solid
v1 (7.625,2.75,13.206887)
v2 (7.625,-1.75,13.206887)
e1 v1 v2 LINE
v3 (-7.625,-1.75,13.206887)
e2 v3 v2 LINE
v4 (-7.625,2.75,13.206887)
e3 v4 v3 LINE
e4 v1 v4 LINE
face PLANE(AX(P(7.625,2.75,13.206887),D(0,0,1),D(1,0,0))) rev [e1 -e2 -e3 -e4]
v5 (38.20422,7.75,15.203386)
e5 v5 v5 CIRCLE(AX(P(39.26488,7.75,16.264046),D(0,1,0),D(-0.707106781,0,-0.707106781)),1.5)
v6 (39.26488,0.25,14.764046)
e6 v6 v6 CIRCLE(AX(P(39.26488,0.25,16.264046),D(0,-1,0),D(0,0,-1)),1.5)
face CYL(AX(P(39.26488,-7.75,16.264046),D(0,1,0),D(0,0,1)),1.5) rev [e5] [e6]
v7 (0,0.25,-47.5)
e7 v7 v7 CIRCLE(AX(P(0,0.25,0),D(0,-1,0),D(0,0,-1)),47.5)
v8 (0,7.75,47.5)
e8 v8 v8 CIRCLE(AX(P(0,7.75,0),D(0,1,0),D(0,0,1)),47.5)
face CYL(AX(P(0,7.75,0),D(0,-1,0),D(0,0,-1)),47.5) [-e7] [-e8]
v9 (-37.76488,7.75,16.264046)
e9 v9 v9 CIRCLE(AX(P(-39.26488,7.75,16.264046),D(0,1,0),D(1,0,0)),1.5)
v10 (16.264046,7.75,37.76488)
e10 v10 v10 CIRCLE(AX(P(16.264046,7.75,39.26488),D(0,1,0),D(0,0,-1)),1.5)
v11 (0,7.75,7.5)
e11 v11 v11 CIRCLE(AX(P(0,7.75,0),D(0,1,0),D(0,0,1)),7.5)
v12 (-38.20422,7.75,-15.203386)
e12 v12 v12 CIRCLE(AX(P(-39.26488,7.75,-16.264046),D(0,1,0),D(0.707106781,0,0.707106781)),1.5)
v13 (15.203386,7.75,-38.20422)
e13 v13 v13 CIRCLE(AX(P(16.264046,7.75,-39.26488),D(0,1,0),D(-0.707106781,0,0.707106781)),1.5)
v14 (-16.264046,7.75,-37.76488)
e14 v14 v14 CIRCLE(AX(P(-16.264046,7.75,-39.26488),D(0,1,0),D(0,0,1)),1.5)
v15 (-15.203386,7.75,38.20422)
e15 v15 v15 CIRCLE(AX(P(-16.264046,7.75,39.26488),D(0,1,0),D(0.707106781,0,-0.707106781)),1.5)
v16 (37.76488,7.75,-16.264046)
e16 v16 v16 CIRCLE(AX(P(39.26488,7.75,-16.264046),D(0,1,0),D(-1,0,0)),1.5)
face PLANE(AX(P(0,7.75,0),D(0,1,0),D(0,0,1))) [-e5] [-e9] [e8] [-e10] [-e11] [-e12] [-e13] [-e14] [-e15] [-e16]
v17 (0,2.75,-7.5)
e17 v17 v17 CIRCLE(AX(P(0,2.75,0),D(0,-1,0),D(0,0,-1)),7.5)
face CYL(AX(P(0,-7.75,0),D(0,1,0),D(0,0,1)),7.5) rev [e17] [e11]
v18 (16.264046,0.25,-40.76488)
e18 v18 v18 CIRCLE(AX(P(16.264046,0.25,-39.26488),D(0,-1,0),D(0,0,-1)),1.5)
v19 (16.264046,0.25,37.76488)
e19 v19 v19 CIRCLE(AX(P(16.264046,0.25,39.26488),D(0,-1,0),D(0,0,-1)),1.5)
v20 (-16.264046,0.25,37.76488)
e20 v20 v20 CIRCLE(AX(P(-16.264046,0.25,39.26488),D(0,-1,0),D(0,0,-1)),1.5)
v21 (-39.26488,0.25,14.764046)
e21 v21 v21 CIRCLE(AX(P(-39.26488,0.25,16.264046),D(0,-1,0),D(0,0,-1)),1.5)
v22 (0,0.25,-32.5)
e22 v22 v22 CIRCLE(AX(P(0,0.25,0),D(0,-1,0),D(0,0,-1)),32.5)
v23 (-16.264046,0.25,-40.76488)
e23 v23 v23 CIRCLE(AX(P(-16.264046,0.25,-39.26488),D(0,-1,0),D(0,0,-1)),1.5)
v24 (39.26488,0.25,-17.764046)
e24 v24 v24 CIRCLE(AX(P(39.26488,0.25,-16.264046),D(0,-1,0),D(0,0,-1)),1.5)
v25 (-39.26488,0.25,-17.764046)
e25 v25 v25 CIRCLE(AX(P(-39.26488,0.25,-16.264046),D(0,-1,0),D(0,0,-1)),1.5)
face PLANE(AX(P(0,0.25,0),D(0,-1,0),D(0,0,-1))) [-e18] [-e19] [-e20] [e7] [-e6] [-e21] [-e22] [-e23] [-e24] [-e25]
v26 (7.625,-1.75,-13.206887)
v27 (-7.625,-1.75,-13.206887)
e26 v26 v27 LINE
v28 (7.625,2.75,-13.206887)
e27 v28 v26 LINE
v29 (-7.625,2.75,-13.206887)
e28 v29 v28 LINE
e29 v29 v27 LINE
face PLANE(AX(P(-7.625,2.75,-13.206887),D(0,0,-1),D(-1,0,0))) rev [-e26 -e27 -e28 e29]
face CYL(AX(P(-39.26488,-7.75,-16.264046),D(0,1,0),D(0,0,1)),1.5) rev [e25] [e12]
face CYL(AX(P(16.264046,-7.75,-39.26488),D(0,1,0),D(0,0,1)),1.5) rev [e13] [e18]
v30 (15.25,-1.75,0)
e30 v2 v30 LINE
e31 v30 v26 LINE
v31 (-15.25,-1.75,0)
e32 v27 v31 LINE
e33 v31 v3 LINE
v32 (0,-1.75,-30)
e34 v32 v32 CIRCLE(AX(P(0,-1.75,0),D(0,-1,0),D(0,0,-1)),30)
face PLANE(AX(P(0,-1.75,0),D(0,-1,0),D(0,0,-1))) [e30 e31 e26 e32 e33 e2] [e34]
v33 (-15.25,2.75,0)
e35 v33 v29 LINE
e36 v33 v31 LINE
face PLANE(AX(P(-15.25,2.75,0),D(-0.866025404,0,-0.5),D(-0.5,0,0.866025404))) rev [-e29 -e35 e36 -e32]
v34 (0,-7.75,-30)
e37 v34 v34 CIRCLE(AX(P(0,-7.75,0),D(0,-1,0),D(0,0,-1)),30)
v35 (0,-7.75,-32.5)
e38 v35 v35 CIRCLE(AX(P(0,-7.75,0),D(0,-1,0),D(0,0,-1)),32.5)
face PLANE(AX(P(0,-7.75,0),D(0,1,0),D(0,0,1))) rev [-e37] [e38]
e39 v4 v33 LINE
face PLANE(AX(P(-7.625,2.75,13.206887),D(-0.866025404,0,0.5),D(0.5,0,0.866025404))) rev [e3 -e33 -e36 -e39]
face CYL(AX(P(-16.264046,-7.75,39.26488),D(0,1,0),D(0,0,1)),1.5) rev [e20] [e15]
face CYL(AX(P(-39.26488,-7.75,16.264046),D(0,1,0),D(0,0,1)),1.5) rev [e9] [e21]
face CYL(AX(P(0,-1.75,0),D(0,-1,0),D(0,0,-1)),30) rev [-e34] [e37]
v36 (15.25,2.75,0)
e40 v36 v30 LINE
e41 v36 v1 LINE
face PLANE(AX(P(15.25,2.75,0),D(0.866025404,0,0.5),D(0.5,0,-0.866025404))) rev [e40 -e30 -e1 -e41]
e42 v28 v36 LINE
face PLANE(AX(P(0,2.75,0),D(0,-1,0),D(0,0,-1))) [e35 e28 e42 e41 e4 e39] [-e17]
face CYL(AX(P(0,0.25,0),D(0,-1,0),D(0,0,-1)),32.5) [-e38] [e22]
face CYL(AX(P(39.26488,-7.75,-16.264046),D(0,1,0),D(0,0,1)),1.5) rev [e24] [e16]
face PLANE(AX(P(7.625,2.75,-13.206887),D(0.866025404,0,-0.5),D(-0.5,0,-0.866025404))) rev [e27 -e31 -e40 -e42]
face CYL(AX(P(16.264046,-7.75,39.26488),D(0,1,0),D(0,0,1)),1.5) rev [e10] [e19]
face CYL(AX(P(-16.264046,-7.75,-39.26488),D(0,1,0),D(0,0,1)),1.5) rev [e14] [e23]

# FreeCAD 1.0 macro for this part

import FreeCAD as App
import Part
import Sketcher
from FreeCAD import Vector
Q = App.Units.Quantity


def add_polygon(sketch, points):
    """Adds a closed chain of lines whose ends are joined by coincident constraints."""
    first, n = sketch.GeometryCount, len(points)
    for a, b in zip(points, points[1:] + points[:1]):
        sketch.addGeometry(Part.LineSegment(App.Vector(*a, 0), App.Vector(*b, 0)), False)
    for i in range(n):
        sketch.addConstraint(Sketcher.Constraint("Coincident", first + i, 2, first + (i + 1) % n, 1))

doc = App.newDocument("Part")
body = doc.addObject("PartDesign::Body", "Body")

sketch1 = body.newObject("Sketcher::SketchObject", "Sketch")
sketch1.AttachmentSupport = (doc.getObject("XZ_Plane"), [""])
sketch1.MapMode = "FlatFace"
sketch1.addGeometry(Part.Circle(Vector(0, 0, 0), Vector(0, 0, 1), 48), False)
sketch1.addConstraint(Sketcher.Constraint("Coincident", 0, 3, -1, 1))
sketch1.addConstraint(Sketcher.Constraint("Diameter", 0, 95.0))
pad1 = body.newObject("PartDesign::Pad", "Pad")
pad1.Profile = sketch1
pad1.Length = 15.5
pad1.Midplane = True

sketch2 = body.newObject("Sketcher::SketchObject", "Sketch001")
sketch2.AttachmentSupport = (doc.getObject("XZ_Plane"), [""])
sketch2.MapMode = "FlatFace"
sketch2.AttachmentOffset = App.Placement(Vector(0, 0, 7.75), App.Rotation())
add_polygon(sketch2, [(-62, 62), (-62, -62), (62, -62), (62, 62)])
sketch2.addGeometry(Part.Circle(Vector(0, 0, 0), Vector(0, 0, 1), 32), False)
sketch2.addConstraint(Sketcher.Constraint("Vertical", 0))
sketch2.addConstraint(Sketcher.Constraint("Horizontal", 1))
sketch2.addConstraint(Sketcher.Constraint("Vertical", 2))
sketch2.addConstraint(Sketcher.Constraint("Horizontal", 3))
sketch2.addConstraint(Sketcher.Constraint("Coincident", 4, 3, -1, 1))
sketch2.addConstraint(Sketcher.Constraint("Symmetric", 0, 2, 2, 2, -1, 1))
sketch2.addConstraint(Sketcher.Constraint("Equal", 3, 0))
sketch2.addConstraint(Sketcher.Constraint("Diameter", 4, 65.0))
sketch2.addConstraint(Sketcher.Constraint("DistanceX", 1, 1, 1, 2, 124.048))
pocket1 = body.newObject("PartDesign::Pocket", "Pocket")
pocket1.Profile = sketch2
pocket1.Length = 8

sketch3 = body.newObject("Sketcher::SketchObject", "Sketch002")
sketch3.AttachmentSupport = (doc.getObject("XZ_Plane"), [""])
sketch3.MapMode = "FlatFace"
sketch3.AttachmentOffset = App.Placement(Vector(0, 0, 7.75), App.Rotation())
add_polygon(sketch3, [(15, 0), (8, 13), (-8, 13), (-15, 0), (-8, -13), (8, -13)])
sketch3.addConstraint(Sketcher.Constraint("Horizontal", 1))
sketch3.addConstraint(Sketcher.Constraint("Horizontal", 4))
sketch3.addConstraint(Sketcher.Constraint("Symmetric", 0, 2, 3, 2, -1, 1))
sketch3.addConstraint(Sketcher.Constraint("Symmetric", 2, 2, 5, 2, -1, 1))
sketch3.addConstraint(Sketcher.Constraint("PointOnObject", 2, 2, -1))
sketch3.addConstraint(Sketcher.Constraint("Parallel", 2, 5))
sketch3.addConstraint(Sketcher.Constraint("Vertical", 1, 2, 3, 2))
sketch3.addConstraint(Sketcher.Constraint("Angle", 0, Q("120 deg")))
sketch3.addConstraint(Sketcher.Constraint("DistanceX", 1, 2, 1, 1, 15.25))
sketch3.addConstraint(Sketcher.Constraint("DistanceX", 2, 2, 5, 2, 30.5))
pocket2 = body.newObject("PartDesign::Pocket", "Pocket001")
pocket2.Profile = sketch3
pocket2.Length = 10.5

sketch4 = body.newObject("Sketcher::SketchObject", "Sketch003")
sketch4.AttachmentSupport = (doc.getObject("XZ_Plane"), [""])
sketch4.MapMode = "FlatFace"
sketch4.AttachmentOffset = App.Placement(Vector(0, 0, 7.75), App.Rotation())
sketch4.addGeometry(Part.Circle(Vector(0, 0, 0), Vector(0, 0, 1), 30), False)
sketch4.addConstraint(Sketcher.Constraint("Coincident", 0, 3, -1, 1))
sketch4.addConstraint(Sketcher.Constraint("Diameter", 0, 60.0))
pocket3 = body.newObject("PartDesign::Pocket", "Pocket002")
pocket3.Profile = sketch4
pocket3.Length = 6

sketch5 = body.newObject("Sketcher::SketchObject", "Sketch004")
sketch5.AttachmentSupport = (doc.getObject("XZ_Plane"), [""])
sketch5.MapMode = "FlatFace"
sketch5.AttachmentOffset = App.Placement(Vector(0, 0, -7.75), App.Rotation())
sketch5.addGeometry(Part.Circle(Vector(-16.3, -39.3, 0), Vector(0, 0, 1), 1.5), False)
sketch5.addConstraint(Sketcher.Constraint("Diameter", 0, 3.0))
sketch5.addConstraint(Sketcher.Constraint("DistanceY", 0, 3, -1, 1, 39.26488))
sketch5.addConstraint(Sketcher.Constraint("DistanceX", 0, 3, -1, 1, 16.264046))
pocket4 = body.newObject("PartDesign::Pocket", "Pocket003")
pocket4.Profile = sketch5
pocket4.Type = "ThroughAll"
pocket4.Reversed = True
doc.recompute()

polarpattern = body.newObject("PartDesign::PolarPattern", "PolarPattern")
polarpattern.Originals = [pocket4]
polarpattern.Axis = (doc.getObject("Y_Axis"), [""])
polarpattern.Angle = 360
polarpattern.Occurrences = 8
body.Tip = polarpattern

sketch6 = body.newObject("Sketcher::SketchObject", "Sketch005")
sketch6.AttachmentSupport = (doc.getObject("XZ_Plane"), [""])
sketch6.MapMode = "FlatFace"
sketch6.AttachmentOffset = App.Placement(Vector(0, 0, -7.75), App.Rotation())
sketch6.addGeometry(Part.Circle(Vector(0, 0, 0), Vector(0, 0, 1), 8), False)
sketch6.addConstraint(Sketcher.Constraint("Coincident", 0, 3, -1, 1))
sketch6.addConstraint(Sketcher.Constraint("Diameter", 0, 15.0))
pocket5 = body.newObject("PartDesign::Pocket", "Pocket004")
pocket5.Profile = sketch6
pocket5.Type = "ThroughAll"
pocket5.Reversed = True

doc.recompute()
